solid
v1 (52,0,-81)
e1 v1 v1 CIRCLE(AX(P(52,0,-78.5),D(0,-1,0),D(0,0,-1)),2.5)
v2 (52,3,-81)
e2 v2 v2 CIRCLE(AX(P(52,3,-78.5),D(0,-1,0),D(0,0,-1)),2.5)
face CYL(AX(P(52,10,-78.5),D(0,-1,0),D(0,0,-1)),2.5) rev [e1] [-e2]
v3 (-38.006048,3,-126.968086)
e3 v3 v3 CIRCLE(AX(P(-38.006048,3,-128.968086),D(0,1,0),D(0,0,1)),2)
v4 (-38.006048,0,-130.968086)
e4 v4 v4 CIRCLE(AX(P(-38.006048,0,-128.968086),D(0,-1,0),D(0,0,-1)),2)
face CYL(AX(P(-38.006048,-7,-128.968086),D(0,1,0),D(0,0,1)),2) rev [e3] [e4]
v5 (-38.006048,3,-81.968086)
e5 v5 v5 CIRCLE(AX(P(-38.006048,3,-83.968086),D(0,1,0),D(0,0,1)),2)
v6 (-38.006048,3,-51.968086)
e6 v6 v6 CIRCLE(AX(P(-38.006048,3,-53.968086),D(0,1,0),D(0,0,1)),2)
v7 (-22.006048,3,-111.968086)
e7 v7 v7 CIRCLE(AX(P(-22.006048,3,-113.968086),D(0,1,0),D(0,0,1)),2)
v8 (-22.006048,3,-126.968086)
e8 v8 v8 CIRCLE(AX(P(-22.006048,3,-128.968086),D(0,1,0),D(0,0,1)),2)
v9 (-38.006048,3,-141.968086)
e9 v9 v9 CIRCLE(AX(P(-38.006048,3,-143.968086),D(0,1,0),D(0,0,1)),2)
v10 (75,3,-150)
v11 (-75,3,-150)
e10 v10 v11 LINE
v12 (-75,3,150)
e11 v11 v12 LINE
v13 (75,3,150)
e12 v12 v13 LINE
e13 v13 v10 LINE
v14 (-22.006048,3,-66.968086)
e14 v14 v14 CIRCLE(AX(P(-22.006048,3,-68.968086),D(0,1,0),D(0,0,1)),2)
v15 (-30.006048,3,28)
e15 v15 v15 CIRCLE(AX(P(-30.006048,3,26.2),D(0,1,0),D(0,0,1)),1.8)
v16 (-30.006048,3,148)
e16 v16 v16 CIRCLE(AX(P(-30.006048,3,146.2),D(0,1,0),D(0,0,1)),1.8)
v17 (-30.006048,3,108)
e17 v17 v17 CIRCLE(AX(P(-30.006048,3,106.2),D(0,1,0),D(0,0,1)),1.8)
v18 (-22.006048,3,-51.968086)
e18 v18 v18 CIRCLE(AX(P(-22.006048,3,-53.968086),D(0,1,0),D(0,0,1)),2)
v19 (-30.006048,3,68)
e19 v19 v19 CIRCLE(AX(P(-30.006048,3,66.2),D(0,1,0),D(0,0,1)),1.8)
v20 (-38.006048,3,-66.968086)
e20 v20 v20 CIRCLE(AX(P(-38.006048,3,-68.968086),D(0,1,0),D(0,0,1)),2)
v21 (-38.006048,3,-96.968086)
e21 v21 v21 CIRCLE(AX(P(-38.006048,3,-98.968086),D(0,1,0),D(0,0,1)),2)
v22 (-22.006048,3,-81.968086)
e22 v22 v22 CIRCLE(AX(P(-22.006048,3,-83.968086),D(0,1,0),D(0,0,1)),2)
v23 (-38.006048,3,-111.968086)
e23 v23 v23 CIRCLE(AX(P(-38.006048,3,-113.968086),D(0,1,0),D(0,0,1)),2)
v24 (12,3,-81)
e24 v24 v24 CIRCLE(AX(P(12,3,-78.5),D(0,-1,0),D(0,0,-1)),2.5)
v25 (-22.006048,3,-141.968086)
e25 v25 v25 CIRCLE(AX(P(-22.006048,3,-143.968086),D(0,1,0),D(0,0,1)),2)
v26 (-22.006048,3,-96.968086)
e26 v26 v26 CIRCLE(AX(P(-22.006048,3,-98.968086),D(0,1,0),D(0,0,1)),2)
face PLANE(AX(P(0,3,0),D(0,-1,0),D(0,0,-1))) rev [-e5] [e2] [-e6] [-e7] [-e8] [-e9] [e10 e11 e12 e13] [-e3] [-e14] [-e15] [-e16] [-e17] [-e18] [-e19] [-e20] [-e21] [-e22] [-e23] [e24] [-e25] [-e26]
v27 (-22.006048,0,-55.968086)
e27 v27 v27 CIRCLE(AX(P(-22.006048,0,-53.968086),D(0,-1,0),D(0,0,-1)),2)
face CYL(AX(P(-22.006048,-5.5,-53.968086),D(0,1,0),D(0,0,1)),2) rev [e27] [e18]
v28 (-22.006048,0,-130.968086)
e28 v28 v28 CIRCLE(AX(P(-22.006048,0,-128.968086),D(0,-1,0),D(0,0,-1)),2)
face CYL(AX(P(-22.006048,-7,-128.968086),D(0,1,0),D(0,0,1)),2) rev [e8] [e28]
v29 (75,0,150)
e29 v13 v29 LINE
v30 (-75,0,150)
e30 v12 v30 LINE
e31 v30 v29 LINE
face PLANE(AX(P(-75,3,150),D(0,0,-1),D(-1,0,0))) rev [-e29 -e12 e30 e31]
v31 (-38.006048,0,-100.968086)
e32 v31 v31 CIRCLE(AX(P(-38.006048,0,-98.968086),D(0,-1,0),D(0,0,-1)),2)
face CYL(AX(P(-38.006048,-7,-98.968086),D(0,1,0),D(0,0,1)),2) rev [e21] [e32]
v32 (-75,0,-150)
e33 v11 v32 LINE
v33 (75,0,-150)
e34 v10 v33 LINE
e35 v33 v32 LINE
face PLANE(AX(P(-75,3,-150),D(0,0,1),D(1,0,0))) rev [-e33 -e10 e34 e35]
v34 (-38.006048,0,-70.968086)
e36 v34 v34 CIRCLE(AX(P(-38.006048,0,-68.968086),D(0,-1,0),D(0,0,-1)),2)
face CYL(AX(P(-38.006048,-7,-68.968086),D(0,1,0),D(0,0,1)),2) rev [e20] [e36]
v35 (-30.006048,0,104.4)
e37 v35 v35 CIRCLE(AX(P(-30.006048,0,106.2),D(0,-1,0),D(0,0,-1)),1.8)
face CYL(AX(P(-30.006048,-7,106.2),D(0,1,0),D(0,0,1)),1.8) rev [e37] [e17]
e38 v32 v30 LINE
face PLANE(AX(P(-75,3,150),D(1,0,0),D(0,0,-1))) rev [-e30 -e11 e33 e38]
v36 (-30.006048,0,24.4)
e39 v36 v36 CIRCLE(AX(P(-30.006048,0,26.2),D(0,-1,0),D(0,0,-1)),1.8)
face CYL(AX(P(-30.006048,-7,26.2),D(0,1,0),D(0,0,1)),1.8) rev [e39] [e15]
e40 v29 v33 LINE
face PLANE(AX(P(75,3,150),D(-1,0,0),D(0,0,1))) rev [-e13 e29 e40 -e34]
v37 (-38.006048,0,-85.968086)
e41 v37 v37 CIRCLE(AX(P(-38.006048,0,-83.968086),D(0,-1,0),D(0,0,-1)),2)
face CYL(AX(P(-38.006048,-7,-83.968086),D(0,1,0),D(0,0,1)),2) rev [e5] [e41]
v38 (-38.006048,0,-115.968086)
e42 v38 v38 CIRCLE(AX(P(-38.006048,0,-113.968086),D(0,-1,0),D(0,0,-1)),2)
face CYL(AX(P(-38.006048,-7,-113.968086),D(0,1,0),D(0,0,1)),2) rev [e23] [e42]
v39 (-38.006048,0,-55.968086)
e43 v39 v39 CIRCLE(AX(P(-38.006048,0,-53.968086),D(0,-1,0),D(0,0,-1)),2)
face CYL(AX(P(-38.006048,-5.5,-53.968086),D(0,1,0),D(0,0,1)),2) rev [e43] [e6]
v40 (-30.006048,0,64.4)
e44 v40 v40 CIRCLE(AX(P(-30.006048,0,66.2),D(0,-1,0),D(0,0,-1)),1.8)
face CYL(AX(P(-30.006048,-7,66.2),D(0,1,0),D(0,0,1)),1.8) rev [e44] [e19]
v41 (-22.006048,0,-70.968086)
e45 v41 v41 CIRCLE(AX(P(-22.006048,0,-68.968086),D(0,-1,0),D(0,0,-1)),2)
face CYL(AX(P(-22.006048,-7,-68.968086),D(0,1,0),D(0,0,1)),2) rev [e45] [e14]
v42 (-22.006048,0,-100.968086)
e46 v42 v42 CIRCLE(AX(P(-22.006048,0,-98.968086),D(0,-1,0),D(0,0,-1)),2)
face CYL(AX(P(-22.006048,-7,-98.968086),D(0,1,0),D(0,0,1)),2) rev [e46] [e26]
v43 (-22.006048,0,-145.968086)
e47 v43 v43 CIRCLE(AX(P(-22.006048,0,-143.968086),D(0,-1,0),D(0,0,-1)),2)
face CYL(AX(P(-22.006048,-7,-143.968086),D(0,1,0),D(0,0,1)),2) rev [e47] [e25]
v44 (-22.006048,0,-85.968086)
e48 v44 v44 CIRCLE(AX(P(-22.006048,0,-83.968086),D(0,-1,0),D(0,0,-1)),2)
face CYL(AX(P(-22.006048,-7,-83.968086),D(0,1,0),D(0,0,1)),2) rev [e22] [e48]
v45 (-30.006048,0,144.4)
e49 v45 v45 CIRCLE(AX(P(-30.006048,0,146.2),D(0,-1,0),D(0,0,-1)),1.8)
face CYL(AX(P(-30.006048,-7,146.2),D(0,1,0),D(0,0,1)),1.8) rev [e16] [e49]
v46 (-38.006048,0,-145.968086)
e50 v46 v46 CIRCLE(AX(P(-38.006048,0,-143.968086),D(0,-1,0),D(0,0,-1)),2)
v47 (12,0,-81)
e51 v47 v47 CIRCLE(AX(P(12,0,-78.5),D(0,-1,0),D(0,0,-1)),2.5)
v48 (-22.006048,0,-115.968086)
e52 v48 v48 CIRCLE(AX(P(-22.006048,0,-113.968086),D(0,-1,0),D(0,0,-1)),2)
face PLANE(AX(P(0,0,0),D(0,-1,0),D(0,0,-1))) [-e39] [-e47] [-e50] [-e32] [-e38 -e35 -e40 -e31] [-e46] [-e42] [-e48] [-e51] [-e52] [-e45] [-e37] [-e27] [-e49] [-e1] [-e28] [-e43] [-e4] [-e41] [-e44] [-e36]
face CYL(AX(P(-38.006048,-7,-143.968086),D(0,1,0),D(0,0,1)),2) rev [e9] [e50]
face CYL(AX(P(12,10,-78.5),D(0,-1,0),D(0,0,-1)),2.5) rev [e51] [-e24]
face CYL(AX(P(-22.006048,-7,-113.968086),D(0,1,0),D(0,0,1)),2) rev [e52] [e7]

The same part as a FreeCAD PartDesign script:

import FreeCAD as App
import Part
import Sketcher
from FreeCAD import Vector
Q = App.Units.Quantity


def add_polygon(sketch, points):
    """Adds a closed chain of lines whose ends are joined by coincident constraints."""
    first, n = sketch.GeometryCount, len(points)
    for a, b in zip(points, points[1:] + points[:1]):
        sketch.addGeometry(Part.LineSegment(App.Vector(*a, 0), App.Vector(*b, 0)), False)
    for i in range(n):
        sketch.addConstraint(Sketcher.Constraint("Coincident", first + i, 2, first + (i + 1) % n, 1))

doc = App.newDocument("Part")
params = doc.addObject("Spreadsheet::Sheet", "Params")
for row, (alias, value) in enumerate([
    ("sketch1_width", "150 mm"),
    ("sketch1_height", "300 mm"),
    ("pad1_length", "3 mm"),
    ("sketch2_diameter", "5 mm"),
    ("pocket1_length", "10 mm"),
    ("sketch3_diameter", "3.6 mm"),
    ("pocket2_length", "10 mm"),
    ("sketch4_diameter", "4 mm"),
    ("pocket3_length", "8.5 mm"),
    ("sketch5_diameter", "4 mm"),
    ("pocket4_length", "10 mm"),
], start=1):
    params.set(f"A{row}", alias)
    params.set(f"B{row}", "=" + value)
    params.setAlias(f"B{row}", alias)

body = doc.addObject("PartDesign::Body", "Body")

sketch1 = doc.addObject("Sketcher::SketchObject", "Sketch")
body.addObject(sketch1)
sketch1.AttachmentSupport = (doc.XZ_Plane, [""])
sketch1.MapMode = "FlatFace"
add_polygon(sketch1, [(-75, -150), (-75, 150), (75, 150), (75, -150)])
sketch1.addConstraint([
    Sketcher.Constraint("Vertical", 0),
    Sketcher.Constraint("Horizontal", 1),
    Sketcher.Constraint("Vertical", 2),
    Sketcher.Constraint("Horizontal", 3),
    Sketcher.Constraint("Symmetric", 0, 2, 2, 2, -1, 1),
    Sketcher.Constraint("DistanceX", 1, 1, 1, 2, Q("150 mm")),
    Sketcher.Constraint("DistanceY", 0, 1, 0, 2, Q("300 mm")),
])
sketch1.setExpression("Constraints[9]", "Params.sketch1_width")
sketch1.setExpression("Constraints[10]", "Params.sketch1_height")
pad1 = doc.addObject("PartDesign::Pad", "Pad")
body.addObject(pad1)
pad1.Profile = sketch1
pad1.setExpression("Length", "Params.pad1_length")
pad1.Reversed = True

sketch2 = doc.addObject("Sketcher::SketchObject", "Sketch001")
body.addObject(sketch2)
sketch2.AttachmentSupport = (doc.XZ_Plane, [""])
sketch2.MapMode = "FlatFace"
sketch2.addGeometry([
    Part.Circle(Vector(52, -78.5, 0), Vector(0, 0, 1), 2.5),
    Part.Circle(Vector(12, -78.5, 0), Vector(0, 0, 1), 2.5),
], False)
sketch2.addConstraint([
    Sketcher.Constraint("Equal", 0, 1),
    Sketcher.Constraint("Horizontal", 0, 3, 1, 3),
    Sketcher.Constraint("Diameter", 0, Q("5 mm")),
    Sketcher.Constraint("DistanceX", -1, 1, 0, 3, Q("52 mm")),
    Sketcher.Constraint("DistanceX", -1, 1, 1, 3, Q("12 mm")),
    Sketcher.Constraint("DistanceY", 0, 3, -1, 1, Q("78.5 mm")),
])
sketch2.setExpression("Constraints[2]", "Params.sketch2_diameter")
pocket1 = doc.addObject("PartDesign::Pocket", "Pocket")
body.addObject(pocket1)
pocket1.Profile = sketch2
pocket1.setExpression("Length", "Params.pocket1_length")

sketch3 = doc.addObject("Sketcher::SketchObject", "Sketch002")
body.addObject(sketch3)
sketch3.AttachmentSupport = (doc.XZ_Plane, [""])
sketch3.MapMode = "FlatFace"
sketch3.AttachmentOffset = App.Placement(Vector(0, 0, -3), App.Rotation())
sketch3.addGeometry([
    Part.Circle(Vector(-30, 146.2, 0), Vector(0, 0, 1), 1.8),
    Part.Circle(Vector(-30, 106.2, 0), Vector(0, 0, 1), 1.8),
    Part.Circle(Vector(-30, 66.2, 0), Vector(0, 0, 1), 1.8),
    Part.Circle(Vector(-30, 26.2, 0), Vector(0, 0, 1), 1.8),
], False)
sketch3.addConstraint([
    Sketcher.Constraint("Equal", 0, 1),
    Sketcher.Constraint("Equal", 1, 2),
    Sketcher.Constraint("Equal", 2, 3),
    Sketcher.Constraint("Vertical", 0, 3, 1, 3),
    Sketcher.Constraint("Vertical", 1, 3, 2, 3),
    Sketcher.Constraint("Vertical", 2, 3, 3, 3),
    Sketcher.Constraint("Diameter", 0, Q("3.6 mm")),
    Sketcher.Constraint("DistanceY", 1, 3, 0, 3, Q("40 mm")),
    Sketcher.Constraint("DistanceY", 2, 3, 1, 3, Q("40 mm")),
    Sketcher.Constraint("DistanceY", 3, 3, 2, 3, Q("40 mm")),
    Sketcher.Constraint("DistanceY", -1, 1, 0, 3, Q("146.2 mm")),
    Sketcher.Constraint("DistanceX", 0, 3, -1, 1, Q("30.006048 mm")),
])
sketch3.setExpression("Constraints[6]", "Params.sketch3_diameter")
pocket2 = doc.addObject("PartDesign::Pocket", "Pocket001")
body.addObject(pocket2)
pocket2.Profile = sketch3
pocket2.setExpression("Length", "Params.pocket2_length")
pocket2.Reversed = True

sketch4 = doc.addObject("Sketcher::SketchObject", "Sketch003")
body.addObject(sketch4)
sketch4.AttachmentSupport = (doc.XZ_Plane, [""])
sketch4.MapMode = "FlatFace"
sketch4.AttachmentOffset = App.Placement(Vector(0, 0, -3), App.Rotation())
sketch4.addGeometry([
    Part.Circle(Vector(-38, -54, 0), Vector(0, 0, 1), 2),
    Part.Circle(Vector(-22, -54, 0), Vector(0, 0, 1), 2),
], False)
sketch4.addConstraint([
    Sketcher.Constraint("Equal", 0, 1),
    Sketcher.Constraint("Horizontal", 0, 3, 1, 3),
    Sketcher.Constraint("Diameter", 0, Q("4 mm")),
    Sketcher.Constraint("DistanceX", 0, 3, 1, 3, Q("16 mm")),
    Sketcher.Constraint("DistanceX", 0, 3, -1, 1, Q("38.006048 mm")),
    Sketcher.Constraint("DistanceY", 0, 3, -1, 1, Q("53.968086 mm")),
])
sketch4.setExpression("Constraints[2]", "Params.sketch4_diameter")
pocket3 = doc.addObject("PartDesign::Pocket", "Pocket002")
body.addObject(pocket3)
pocket3.Profile = sketch4
pocket3.setExpression("Length", "Params.pocket3_length")
pocket3.Reversed = True

sketch5 = doc.addObject("Sketcher::SketchObject", "Sketch004")
body.addObject(sketch5)
sketch5.AttachmentSupport = (doc.XZ_Plane, [""])
sketch5.MapMode = "FlatFace"
sketch5.AttachmentOffset = App.Placement(Vector(0, 0, -3), App.Rotation())
sketch5.addGeometry([
    Part.Circle(Vector(-38, -69, 0), Vector(0, 0, 1), 2),
    Part.Circle(Vector(-22, -69, 0), Vector(0, 0, 1), 2),
    Part.Circle(Vector(-38, -84, 0), Vector(0, 0, 1), 2),
    Part.Circle(Vector(-22, -84, 0), Vector(0, 0, 1), 2),
    Part.Circle(Vector(-38, -99, 0), Vector(0, 0, 1), 2),
    Part.Circle(Vector(-22, -99, 0), Vector(0, 0, 1), 2),
    Part.Circle(Vector(-38, -114, 0), Vector(0, 0, 1), 2),
    Part.Circle(Vector(-22, -114, 0), Vector(0, 0, 1), 2),
    Part.Circle(Vector(-38, -129, 0), Vector(0, 0, 1), 2),
    Part.Circle(Vector(-22, -129, 0), Vector(0, 0, 1), 2),
    Part.Circle(Vector(-38, -144, 0), Vector(0, 0, 1), 2),
    Part.Circle(Vector(-22, -144, 0), Vector(0, 0, 1), 2),
], False)
sketch5.addConstraint([
    Sketcher.Constraint("Equal", 0, 1),
    Sketcher.Constraint("Equal", 1, 2),
    Sketcher.Constraint("Equal", 2, 3),
    Sketcher.Constraint("Equal", 3, 4),
    Sketcher.Constraint("Equal", 4, 5),
    Sketcher.Constraint("Equal", 5, 6),
    Sketcher.Constraint("Equal", 6, 7),
    Sketcher.Constraint("Equal", 7, 8),
    Sketcher.Constraint("Equal", 8, 9),
    Sketcher.Constraint("Equal", 9, 10),
    Sketcher.Constraint("Equal", 10, 11),
    Sketcher.Constraint("Horizontal", 0, 3, 1, 3),
    Sketcher.Constraint("Horizontal", 2, 3, 3, 3),
    Sketcher.Constraint("Horizontal", 4, 3, 5, 3),
    Sketcher.Constraint("Horizontal", 6, 3, 7, 3),
    Sketcher.Constraint("Horizontal", 8, 3, 9, 3),
    Sketcher.Constraint("Horizontal", 10, 3, 11, 3),
    Sketcher.Constraint("Vertical", 0, 3, 2, 3),
    Sketcher.Constraint("Vertical", 1, 3, 3, 3),
    Sketcher.Constraint("Vertical", 2, 3, 4, 3),
    Sketcher.Constraint("Vertical", 3, 3, 5, 3),
    Sketcher.Constraint("Vertical", 4, 3, 6, 3),
    Sketcher.Constraint("Vertical", 5, 3, 7, 3),
    Sketcher.Constraint("Vertical", 6, 3, 8, 3),
    Sketcher.Constraint("Vertical", 7, 3, 9, 3),
    Sketcher.Constraint("Vertical", 8, 3, 10, 3),
    Sketcher.Constraint("Vertical", 9, 3, 11, 3),
    Sketcher.Constraint("Diameter", 0, Q("4 mm")),
    Sketcher.Constraint("DistanceX", 0, 3, 1, 3, Q("16 mm")),
    Sketcher.Constraint("DistanceY", 2, 3, 0, 3, Q("15 mm")),
    Sketcher.Constraint("DistanceY", 4, 3, 2, 3, Q("15 mm")),
    Sketcher.Constraint("DistanceY", 6, 3, 4, 3, Q("15 mm")),
    Sketcher.Constraint("DistanceY", 8, 3, 6, 3, Q("15 mm")),
    Sketcher.Constraint("DistanceY", 10, 3, 8, 3, Q("15 mm")),
    Sketcher.Constraint("DistanceX", 0, 3, -1, 1, Q("38.006048 mm")),
    Sketcher.Constraint("DistanceY", 0, 3, -1, 1, Q("68.968086 mm")),
])
sketch5.setExpression("Constraints[27]", "Params.sketch5_diameter")
pocket4 = doc.addObject("PartDesign::Pocket", "Pocket003")
body.addObject(pocket4)
pocket4.Profile = sketch5
pocket4.setExpression("Length", "Params.pocket4_length")
pocket4.Reversed = True

doc.recompute()
